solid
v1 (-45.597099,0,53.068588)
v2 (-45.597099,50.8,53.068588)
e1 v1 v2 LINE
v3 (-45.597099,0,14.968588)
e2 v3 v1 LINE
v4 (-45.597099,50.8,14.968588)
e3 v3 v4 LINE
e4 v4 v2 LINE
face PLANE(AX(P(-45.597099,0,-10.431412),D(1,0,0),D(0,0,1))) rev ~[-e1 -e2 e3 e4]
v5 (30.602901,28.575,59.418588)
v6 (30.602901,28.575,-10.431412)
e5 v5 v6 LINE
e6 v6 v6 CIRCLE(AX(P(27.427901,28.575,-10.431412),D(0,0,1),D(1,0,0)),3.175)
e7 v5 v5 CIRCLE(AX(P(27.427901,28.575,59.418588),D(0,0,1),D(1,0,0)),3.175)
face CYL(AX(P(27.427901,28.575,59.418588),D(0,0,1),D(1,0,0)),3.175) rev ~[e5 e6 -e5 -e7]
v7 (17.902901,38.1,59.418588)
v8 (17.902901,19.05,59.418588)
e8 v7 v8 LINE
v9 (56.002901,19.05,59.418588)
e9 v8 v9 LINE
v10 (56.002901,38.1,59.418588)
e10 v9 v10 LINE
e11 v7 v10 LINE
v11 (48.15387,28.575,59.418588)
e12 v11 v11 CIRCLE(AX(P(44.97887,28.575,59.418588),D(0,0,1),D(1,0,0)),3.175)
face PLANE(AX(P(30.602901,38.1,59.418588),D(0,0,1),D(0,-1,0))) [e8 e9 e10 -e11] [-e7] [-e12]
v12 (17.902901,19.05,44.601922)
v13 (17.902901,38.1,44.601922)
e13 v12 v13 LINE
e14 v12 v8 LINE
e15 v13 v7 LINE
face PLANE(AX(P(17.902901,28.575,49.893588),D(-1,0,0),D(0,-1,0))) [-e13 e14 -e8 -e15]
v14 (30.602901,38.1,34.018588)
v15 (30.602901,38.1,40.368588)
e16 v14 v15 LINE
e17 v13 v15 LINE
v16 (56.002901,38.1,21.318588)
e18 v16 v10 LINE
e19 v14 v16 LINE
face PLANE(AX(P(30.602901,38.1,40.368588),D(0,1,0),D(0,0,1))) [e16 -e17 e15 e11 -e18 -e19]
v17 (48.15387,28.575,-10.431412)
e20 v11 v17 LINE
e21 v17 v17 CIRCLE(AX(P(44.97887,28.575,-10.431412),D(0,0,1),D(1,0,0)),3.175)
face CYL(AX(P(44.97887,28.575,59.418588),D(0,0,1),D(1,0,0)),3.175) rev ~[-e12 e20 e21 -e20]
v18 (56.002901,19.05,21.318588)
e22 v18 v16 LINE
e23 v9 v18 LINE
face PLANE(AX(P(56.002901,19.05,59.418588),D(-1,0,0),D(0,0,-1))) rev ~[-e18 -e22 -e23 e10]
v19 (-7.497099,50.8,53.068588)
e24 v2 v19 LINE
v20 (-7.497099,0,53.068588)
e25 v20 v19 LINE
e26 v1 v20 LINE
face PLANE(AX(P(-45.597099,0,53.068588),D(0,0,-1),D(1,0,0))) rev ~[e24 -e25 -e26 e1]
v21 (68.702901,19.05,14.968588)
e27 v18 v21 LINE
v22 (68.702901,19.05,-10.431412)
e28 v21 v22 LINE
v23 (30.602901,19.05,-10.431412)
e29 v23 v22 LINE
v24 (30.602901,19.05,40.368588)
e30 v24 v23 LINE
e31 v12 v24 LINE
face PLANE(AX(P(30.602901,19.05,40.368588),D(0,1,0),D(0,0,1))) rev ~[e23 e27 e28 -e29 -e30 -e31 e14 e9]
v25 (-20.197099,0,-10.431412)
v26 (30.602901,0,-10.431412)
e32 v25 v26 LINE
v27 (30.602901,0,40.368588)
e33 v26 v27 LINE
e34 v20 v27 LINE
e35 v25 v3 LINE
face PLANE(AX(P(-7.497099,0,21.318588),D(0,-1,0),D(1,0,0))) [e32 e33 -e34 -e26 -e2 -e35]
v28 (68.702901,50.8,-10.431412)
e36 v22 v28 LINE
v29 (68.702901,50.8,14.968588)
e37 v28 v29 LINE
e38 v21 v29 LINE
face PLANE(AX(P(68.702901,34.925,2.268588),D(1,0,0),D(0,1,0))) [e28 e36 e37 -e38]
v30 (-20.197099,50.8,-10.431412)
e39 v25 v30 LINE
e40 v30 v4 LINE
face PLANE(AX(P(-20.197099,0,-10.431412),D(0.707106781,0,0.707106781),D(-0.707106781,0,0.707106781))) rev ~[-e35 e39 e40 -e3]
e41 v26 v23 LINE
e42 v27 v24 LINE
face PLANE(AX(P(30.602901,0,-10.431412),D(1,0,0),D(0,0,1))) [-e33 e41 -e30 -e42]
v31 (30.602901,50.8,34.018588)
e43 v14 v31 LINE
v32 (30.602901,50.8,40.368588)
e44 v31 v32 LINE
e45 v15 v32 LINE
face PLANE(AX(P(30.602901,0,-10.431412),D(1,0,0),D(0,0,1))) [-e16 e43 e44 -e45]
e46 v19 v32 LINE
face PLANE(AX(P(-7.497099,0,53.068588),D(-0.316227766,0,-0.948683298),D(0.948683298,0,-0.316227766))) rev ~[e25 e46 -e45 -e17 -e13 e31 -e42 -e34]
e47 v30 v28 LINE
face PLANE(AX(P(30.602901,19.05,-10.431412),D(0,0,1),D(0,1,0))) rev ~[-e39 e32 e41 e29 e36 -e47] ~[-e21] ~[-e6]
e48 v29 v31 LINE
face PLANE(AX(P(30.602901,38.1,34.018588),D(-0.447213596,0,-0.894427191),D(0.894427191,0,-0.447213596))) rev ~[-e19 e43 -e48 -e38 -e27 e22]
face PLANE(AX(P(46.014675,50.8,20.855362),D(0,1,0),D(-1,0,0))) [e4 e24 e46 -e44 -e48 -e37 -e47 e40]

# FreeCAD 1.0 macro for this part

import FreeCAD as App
import Part
import Sketcher

V = App.Vector
Q = App.Units.Quantity

doc = App.newDocument("Part")
body = doc.addObject("PartDesign::Body", "Body")

# Sketch on XZ plane
sketch1 = body.newObject("Sketcher::SketchObject", "Sketch")
sketch1.AttachmentSupport = (doc.getObject("XZ_Plane"), [""])
sketch1.MapMode = "FlatFace"
sketch1.addGeometry([
    Part.LineSegment(V(-46, 53, 0), V(-46, -10, 0)),
    Part.LineSegment(V(-46, -10, 0), V(31, -10, 0)),
    Part.LineSegment(V(31, -10, 0), V(31, 53, 0)),
    Part.LineSegment(V(31, 53, 0), V(-46, 53, 0)),
], False)
sketch1.addConstraint([
    Sketcher.Constraint("Coincident", 0, 2, 1, 1),
    Sketcher.Constraint("Coincident", 1, 2, 2, 1),
    Sketcher.Constraint("Coincident", 2, 2, 3, 1),
    Sketcher.Constraint("Coincident", 3, 2, 0, 1),
    Sketcher.Constraint("Vertical", 0),
    Sketcher.Constraint("Horizontal", 1),
    Sketcher.Constraint("Vertical", 2),
    Sketcher.Constraint("Horizontal", 3),
    Sketcher.Constraint("DistanceX", 1, 1, 1, 2, Q("3 in")),
    Sketcher.Constraint("DistanceY", 0, 2, 0, 1, Q("2.5 in")),
    Sketcher.Constraint("DistanceX", 0, 2, -1, 1, Q("45.597099 mm")),
    Sketcher.Constraint("DistanceY", 0, 2, -1, 1, Q("10.431412 mm")),
])
pad1 = body.newObject("PartDesign::Pad", "Pad")
pad1.Profile = sketch1
pad1.Length = Q("2 in")
pad1.Reversed = True

# Sketch on XZ plane
sketch2 = body.newObject("Sketcher::SketchObject", "Sketch001")
sketch2.AttachmentSupport = (doc.getObject("XZ_Plane"), [""])
sketch2.MapMode = "FlatFace"
sketch2.addGeometry([
    Part.LineSegment(V(-46, 15, 0), V(-46, -10, 0)),  # 0
    Part.LineSegment(V(-46, -10, 0), V(-20, -10, 0)),  # 1
    Part.LineSegment(V(-20, -10, 0), V(-46, 15, 0)),  # 2
    Part.LineSegment(V(31, 40, 0), V(31, 53, 0)),  # 3
    Part.LineSegment(V(31, 53, 0), V(-7, 53, 0)),  # 4
    Part.LineSegment(V(-7, 53, 0), V(31, 40, 0)),  # 5
], False)
sketch2.addConstraint([
    Sketcher.Constraint("Coincident", 0, 2, 1, 1),
    Sketcher.Constraint("Coincident", 1, 2, 2, 1),
    Sketcher.Constraint("Coincident", 2, 2, 0, 1),
    Sketcher.Constraint("Coincident", 3, 2, 4, 1),
    Sketcher.Constraint("Coincident", 4, 2, 5, 1),
    Sketcher.Constraint("Coincident", 5, 2, 3, 1),
    Sketcher.Constraint("Vertical", 0),
    Sketcher.Constraint("Horizontal", 1),
    Sketcher.Constraint("Vertical", 3),
    Sketcher.Constraint("Horizontal", 4),
    Sketcher.Constraint("Equal", 1, 0),
    Sketcher.Constraint("DistanceX", 1, 1, 1, 2, Q("1 in")),
    Sketcher.Constraint("DistanceX", 4, 2, 4, 1, Q("1.5 in")),
    Sketcher.Constraint("DistanceY", 3, 1, 3, 2, Q("0.5 in")),
    Sketcher.Constraint("DistanceX", 1, 2, 3, 2, Q("2 in")),
    Sketcher.Constraint("DistanceY", 1, 2, 5, 2, Q("2 in")),
    Sketcher.Constraint("DistanceX", 0, 2, -1, 1, Q("45.597099 mm")),
    Sketcher.Constraint("DistanceY", 0, 2, -1, 1, Q("10.431412 mm")),
])
pocket1 = body.newObject("PartDesign::Pocket", "Pocket")
pocket1.Profile = sketch2
pocket1.Length = Q("2 in")

# Sketch on YZ plane
sketch3 = body.newObject("Sketcher::SketchObject", "Sketch002")
sketch3.AttachmentSupport = (doc.getObject("YZ_Plane"), [""])
sketch3.MapMode = "FlatFace"
sketch3.AttachmentOffset = App.Placement(V(0, 0, 30.602901), App.Rotation())
sketch3.addGeometry([
    Part.LineSegment(V(19, -10, 0), V(51, -10, 0)),  # 0
    Part.LineSegment(V(51, -10, 0), V(51, 15, 0)),  # 1
    Part.LineSegment(V(51, 15, 0), V(38, 15, 0)),  # 2
    Part.LineSegment(V(38, 15, 0), V(38, 59, 0)),  # 3
    Part.LineSegment(V(38, 59, 0), V(19, 59, 0)),  # 4
    Part.LineSegment(V(19, 59, 0), V(19, -10, 0)),  # 5
], False)
sketch3.addConstraint([
    Sketcher.Constraint("Coincident", 0, 2, 1, 1),
    Sketcher.Constraint("Coincident", 1, 2, 2, 1),
    Sketcher.Constraint("Coincident", 2, 2, 3, 1),
    Sketcher.Constraint("Coincident", 3, 2, 4, 1),
    Sketcher.Constraint("Coincident", 4, 2, 5, 1),
    Sketcher.Constraint("Coincident", 5, 2, 0, 1),
    Sketcher.Constraint("Horizontal", 0),
    Sketcher.Constraint("Vertical", 1),
    Sketcher.Constraint("Horizontal", 2),
    Sketcher.Constraint("Vertical", 3),
    Sketcher.Constraint("Horizontal", 4),
    Sketcher.Constraint("Vertical", 5),
    Sketcher.Constraint("DistanceY", 1, 1, 1, 2, Q("1 in")),
    Sketcher.Constraint("DistanceX", 2, 2, 2, 1, Q("0.5 in")),
    Sketcher.Constraint("DistanceX", -1, 1, 0, 2, Q("2 in")),
    Sketcher.Constraint("DistanceX", 0, 1, 0, 2, Q("1.25 in")),
    Sketcher.Constraint("DistanceY", 3, 1, 3, 2, Q("1.75 in")),
    Sketcher.Constraint("DistanceY", 0, 2, -1, 1, Q("10.431412 mm")),
])
pad2 = body.newObject("PartDesign::Pad", "Pad001")
pad2.Profile = sketch3
pad2.Length = Q("1.5 in")

# Sketch on YZ plane
sketch4 = body.newObject("Sketcher::SketchObject", "Sketch003")
sketch4.AttachmentSupport = (doc.getObject("YZ_Plane"), [""])
sketch4.MapMode = "FlatFace"
sketch4.AttachmentOffset = App.Placement(V(0, 0, 30.602901), App.Rotation())
sketch4.addGeometry([
    Part.LineSegment(V(38, 59, 0), V(38, 40, 0)),
    Part.LineSegment(V(38, 40, 0), V(19, 40, 0)),
    Part.LineSegment(V(19, 40, 0), V(19, 59, 0)),
    Part.LineSegment(V(19, 59, 0), V(38, 59, 0)),
], False)
sketch4.addConstraint([
    Sketcher.Constraint("Coincident", 0, 2, 1, 1),
    Sketcher.Constraint("Coincident", 1, 2, 2, 1),
    Sketcher.Constraint("Coincident", 2, 2, 3, 1),
    Sketcher.Constraint("Coincident", 3, 2, 0, 1),
    Sketcher.Constraint("Vertical", 0),
    Sketcher.Constraint("Horizontal", 1),
    Sketcher.Constraint("Vertical", 2),
    Sketcher.Constraint("Horizontal", 3),
    Sketcher.Constraint("Equal", 3, 0),
    Sketcher.Constraint("DistanceX", 1, 2, 1, 1, Q("0.75 in")),
    Sketcher.Constraint("DistanceX", -1, 1, 0, 2, Q("1.5 in")),
    Sketcher.Constraint("DistanceY", -1, 1, 0, 2, Q("40.368588 mm")),
])
pad3 = body.newObject("PartDesign::Pad", "Pad002")
pad3.Profile = sketch4
pad3.Length = Q("0.5 in")
pad3.Reversed = True

# Sketch on XZ plane
sketch5 = body.newObject("Sketcher::SketchObject", "Sketch004")
sketch5.AttachmentSupport = (doc.getObject("XZ_Plane"), [""])
sketch5.MapMode = "FlatFace"
sketch5.AttachmentOffset = App.Placement(V(0, 0, -1.5 * 25.4), App.Rotation())
sketch5.addGeometry([
    Part.LineSegment(V(31, 34, 0), V(69, 15, 0)),
    Part.LineSegment(V(69, 15, 0), V(31, 15, 0)),
    Part.LineSegment(V(31, 15, 0), V(31, 34, 0)),
], False)
sketch5.addConstraint([
    Sketcher.Constraint("Coincident", 0, 2, 1, 1),
    Sketcher.Constraint("Coincident", 1, 2, 2, 1),
    Sketcher.Constraint("Coincident", 2, 2, 0, 1),
    Sketcher.Constraint("Horizontal", 1),
    Sketcher.Constraint("Vertical", 2),
    Sketcher.Constraint("DistanceX", 1, 2, 1, 1, Q("1.5 in")),
    Sketcher.Constraint("DistanceY", 2, 1, 2, 2, Q("0.75 in")),
    Sketcher.Constraint("DistanceX", -1, 1, 0, 2, Q("68.702901 mm")),
    Sketcher.Constraint("DistanceY", -1, 1, 0, 2, Q("14.968588 mm")),
])
pad4 = body.newObject("PartDesign::Pad", "Pad003")
pad4.Profile = sketch5
pad4.Length = Q("0.5 in")
pad4.Reversed = True

# Sketch on XY plane
sketch6 = body.newObject("Sketcher::SketchObject", "Sketch005")
sketch6.AttachmentSupport = (doc.getObject("XY_Plane"), [""])
sketch6.MapMode = "FlatFace"
sketch6.AttachmentOffset = App.Placement(V(0, 0, 59.418588), App.Rotation())
sketch6.addGeometry([
    Part.Circle(V(27.4, 28.6, 0), V(0, 0, 1), 3.2),
    Part.Circle(V(45, 28.6, 0), V(0, 0, 1), 3.2),
], False)
sketch6.addConstraint([
    Sketcher.Constraint("Equal", 0, 1),
    Sketcher.Constraint("Horizontal", 0, 3, 1, 3),
    Sketcher.Constraint("Diameter", 0, Q("0.25 in")),
    Sketcher.Constraint("DistanceY", -1, 1, 0, 3, Q("1.125 in")),
    Sketcher.Constraint("DistanceX", -1, 1, 0, 3, Q("27.427901 mm")),
    Sketcher.Constraint("DistanceX", -1, 1, 1, 3, Q("44.97887 mm")),
])
pocket2 = body.newObject("PartDesign::Pocket", "Pocket001")
pocket2.Profile = sketch6
pocket2.Type = "ThroughAll"

# Sketch on XZ plane
sketch7 = body.newObject("Sketcher::SketchObject", "Sketch006")
sketch7.AttachmentSupport = (doc.getObject("XZ_Plane"), [""])
sketch7.MapMode = "FlatFace"
sketch7.AttachmentOffset = App.Placement(V(0, 0, -0.75 * 25.4), App.Rotation())
sketch7.addGeometry([
    Part.LineSegment(V(56, 59, 0), V(56, 21, 0)),
    Part.LineSegment(V(56, 21, 0), V(69, 15, 0)),
    Part.LineSegment(V(69, 15, 0), V(69, 59, 0)),
    Part.LineSegment(V(69, 59, 0), V(56, 59, 0)),
], False)
sketch7.addConstraint([
    Sketcher.Constraint("Coincident", 0, 2, 1, 1),
    Sketcher.Constraint("Coincident", 1, 2, 2, 1),
    Sketcher.Constraint("Coincident", 2, 2, 3, 1),
    Sketcher.Constraint("Coincident", 3, 2, 0, 1),
    Sketcher.Constraint("Vertical", 0),
    Sketcher.Constraint("Vertical", 2),
    Sketcher.Constraint("Horizontal", 3),
    Sketcher.Constraint("DistanceX", 3, 2, 3, 1, Q("0.5 in")),
    Sketcher.Constraint("DistanceY", 0, 2, 0, 1, Q("1.5 in")),
    Sketcher.Constraint("DistanceY", 2, 1, 2, 2, Q("1.75 in")),
    Sketcher.Constraint("DistanceX", -1, 1, 0, 2, Q("56.002901 mm")),
    Sketcher.Constraint("DistanceY", -1, 1, 0, 2, Q("21.318588 mm")),
])
pocket3 = body.newObject("PartDesign::Pocket", "Pocket002")
pocket3.Profile = sketch7
pocket3.Length = Q("1.25 in")

doc.recompute()
